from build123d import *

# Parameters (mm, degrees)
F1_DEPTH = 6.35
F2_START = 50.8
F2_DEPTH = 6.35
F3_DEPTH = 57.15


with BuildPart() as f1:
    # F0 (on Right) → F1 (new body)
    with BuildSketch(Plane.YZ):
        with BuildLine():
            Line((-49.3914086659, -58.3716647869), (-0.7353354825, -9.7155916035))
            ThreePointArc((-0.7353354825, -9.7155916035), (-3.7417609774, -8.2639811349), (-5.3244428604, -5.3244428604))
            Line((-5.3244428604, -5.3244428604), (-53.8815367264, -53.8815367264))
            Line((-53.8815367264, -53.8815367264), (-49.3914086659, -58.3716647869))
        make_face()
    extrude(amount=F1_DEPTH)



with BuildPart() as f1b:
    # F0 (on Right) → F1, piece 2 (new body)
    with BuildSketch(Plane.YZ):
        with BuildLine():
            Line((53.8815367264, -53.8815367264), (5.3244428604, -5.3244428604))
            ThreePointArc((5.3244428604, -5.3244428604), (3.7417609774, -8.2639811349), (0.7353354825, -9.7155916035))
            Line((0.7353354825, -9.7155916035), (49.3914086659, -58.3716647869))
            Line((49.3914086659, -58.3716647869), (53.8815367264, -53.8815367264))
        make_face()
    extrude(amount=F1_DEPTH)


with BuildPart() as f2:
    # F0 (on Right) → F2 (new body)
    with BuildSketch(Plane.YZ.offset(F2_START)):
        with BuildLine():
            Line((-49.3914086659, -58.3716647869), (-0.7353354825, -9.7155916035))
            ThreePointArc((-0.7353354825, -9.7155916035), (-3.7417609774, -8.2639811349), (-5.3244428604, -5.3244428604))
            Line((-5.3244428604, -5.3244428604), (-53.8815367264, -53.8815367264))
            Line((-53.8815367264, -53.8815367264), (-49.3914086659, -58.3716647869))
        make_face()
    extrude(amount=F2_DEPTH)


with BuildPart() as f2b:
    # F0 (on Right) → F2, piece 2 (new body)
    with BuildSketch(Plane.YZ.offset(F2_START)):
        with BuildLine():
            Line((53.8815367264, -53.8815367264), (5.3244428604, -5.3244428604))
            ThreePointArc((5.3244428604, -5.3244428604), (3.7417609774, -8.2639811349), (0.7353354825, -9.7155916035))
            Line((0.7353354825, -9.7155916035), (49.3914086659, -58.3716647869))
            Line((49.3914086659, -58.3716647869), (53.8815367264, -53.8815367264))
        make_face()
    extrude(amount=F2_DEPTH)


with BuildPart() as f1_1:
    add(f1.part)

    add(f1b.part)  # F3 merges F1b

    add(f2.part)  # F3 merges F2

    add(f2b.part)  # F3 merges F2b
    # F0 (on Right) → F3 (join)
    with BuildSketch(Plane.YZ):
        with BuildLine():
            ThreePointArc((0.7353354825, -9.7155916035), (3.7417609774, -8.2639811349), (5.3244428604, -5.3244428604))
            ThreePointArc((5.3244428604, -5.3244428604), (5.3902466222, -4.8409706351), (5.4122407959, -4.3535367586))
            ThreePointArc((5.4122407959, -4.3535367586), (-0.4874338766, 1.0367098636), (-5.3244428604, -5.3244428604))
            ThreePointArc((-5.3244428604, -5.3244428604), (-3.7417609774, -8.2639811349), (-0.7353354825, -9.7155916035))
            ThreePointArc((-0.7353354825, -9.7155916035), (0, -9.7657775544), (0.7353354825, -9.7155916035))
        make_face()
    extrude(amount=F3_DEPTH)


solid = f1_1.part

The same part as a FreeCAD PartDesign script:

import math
import FreeCAD as App
import Part
import Sketcher

V = App.Vector
Q = App.Units.Quantity

doc = App.newDocument("Part")
params = doc.addObject("Spreadsheet::Sheet", "Params")
for row, (alias, value) in enumerate([
    ("sketch1_length", "0.25 in"),
    ("pad1_length", "0.25 in"),
    ("sketch2_length", "0.25 in"),
    ("pad2_length", "0.25 in"),
    ("sketch3_length", "0.25 in"),
    ("pad3_length", "0.25 in"),
    ("sketch4_length", "0.25 in"),
    ("pad4_length", "0.25 in"),
    ("pad5_length", "2.25 in"),
], start=1):
    params.set(f"A{row}", alias)
    params.set(f"B{row}", "=" + value)
    params.setAlias(f"B{row}", alias)

body = doc.addObject("PartDesign::Body", "Body")

sketch1 = doc.addObject("Sketcher::SketchObject", "Sketch")
body.addObject(sketch1)
sketch1.AttachmentSupport = (doc.YZ_Plane, [""])
sketch1.MapMode = "FlatFace"
sketch1.addGeometry([
    Part.LineSegment(V(-49.391409, -58.371665, 0), V(-0.735335, -9.715592, 0)),
    Part.ArcOfCircle(Part.Circle(V(0, -4.353537, 0), V(0, 0, 1), 5.412241), math.radians(-169.665723), math.radians(-97.808656)),
    Part.LineSegment(V(-5.324443, -5.324443, 0), V(-53.881537, -53.881537, 0)),
    Part.LineSegment(V(-53.881537, -53.881537, 0), V(-49.391409, -58.371665, 0)),
], False)
sketch1.addConstraint([
    Sketcher.Constraint("Coincident", 0, 2, 1, 2),
    Sketcher.Constraint("Coincident", 1, 1, 2, 1),
    Sketcher.Constraint("Coincident", 2, 2, 3, 1),
    Sketcher.Constraint("Coincident", 3, 2, 0, 1),
    Sketcher.Constraint("PointOnObject", 1, 3, -2),
    Sketcher.Constraint("Parallel", 0, 2),
    Sketcher.Constraint("Perpendicular", 2, 3),
    Sketcher.Constraint("Angle", 0, Q("45 deg")),
    Sketcher.Constraint("Distance", 3, Q("0.25 in")),
    Sketcher.Constraint("Radius", 1, Q("5.412241 mm")),
    Sketcher.Constraint("Distance", 2, Q("68.670101 mm")),
    Sketcher.Constraint("DistanceX", 2, 2, 0, 2, Q("53.146201 mm")),
    Sketcher.Constraint("DistanceY", 0, 2, -1, 1, Q("9.715592 mm")),
])
sketch1.setExpression("Constraints[8]", "Params.sketch1_length")
pad1 = doc.addObject("PartDesign::Pad", "Pad")
body.addObject(pad1)
pad1.Profile = sketch1
pad1.setExpression("Length", "Params.pad1_length")
body2 = doc.addObject("PartDesign::Body", "Body001")

sketch2 = doc.addObject("Sketcher::SketchObject", "Sketch001")
body2.addObject(sketch2)
sketch2.AttachmentSupport = (doc.getObject("YZ_Plane001"), [""])
sketch2.MapMode = "FlatFace"
sketch2.addGeometry([
    Part.LineSegment(V(53.881537, -53.881537, 0), V(5.324443, -5.324443, 0)),
    Part.ArcOfCircle(Part.Circle(V(0, -4.353537, 0), V(0, 0, 1), 5.412241), math.radians(-82.191344), math.radians(-10.334277)),
    Part.LineSegment(V(0.735335, -9.715592, 0), V(49.391409, -58.371665, 0)),
    Part.LineSegment(V(49.391409, -58.371665, 0), V(53.881537, -53.881537, 0)),
], False)
sketch2.addConstraint([
    Sketcher.Constraint("Coincident", 0, 2, 1, 2),
    Sketcher.Constraint("Coincident", 1, 1, 2, 1),
    Sketcher.Constraint("Coincident", 2, 2, 3, 1),
    Sketcher.Constraint("Coincident", 3, 2, 0, 1),
    Sketcher.Constraint("PointOnObject", 1, 3, -2),
    Sketcher.Constraint("Parallel", 0, 2),
    Sketcher.Constraint("Perpendicular", 2, 3),
    Sketcher.Constraint("Angle", 0, Q("135 deg")),
    Sketcher.Constraint("Distance", 3, Q("0.25 in")),
    Sketcher.Constraint("Radius", 1, Q("5.412241 mm")),
    Sketcher.Constraint("Distance", 0, Q("68.670101 mm")),
    Sketcher.Constraint("DistanceX", 1, 1, 3, 2, Q("53.146201 mm")),
    Sketcher.Constraint("DistanceY", 1, 1, -1, 1, Q("9.715592 mm")),
])
sketch2.setExpression("Constraints[8]", "Params.sketch2_length")
pad2 = doc.addObject("PartDesign::Pad", "Pad001")
body2.addObject(pad2)
pad2.Profile = sketch2
pad2.setExpression("Length", "Params.pad2_length")
body3 = doc.addObject("PartDesign::Body", "Body002")

sketch3 = doc.addObject("Sketcher::SketchObject", "Sketch002")
body3.addObject(sketch3)
sketch3.AttachmentSupport = (doc.getObject("YZ_Plane002"), [""])
sketch3.MapMode = "FlatFace"
sketch3.AttachmentOffset = App.Placement(V(0, 0, 2 * 25.4), App.Rotation())
sketch3.addGeometry([
    Part.LineSegment(V(-49.391409, -58.371665, 0), V(-0.735335, -9.715592, 0)),
    Part.ArcOfCircle(Part.Circle(V(0, -4.353537, 0), V(0, 0, 1), 5.412241), math.radians(-169.665723), math.radians(-97.808656)),
    Part.LineSegment(V(-5.324443, -5.324443, 0), V(-53.881537, -53.881537, 0)),
    Part.LineSegment(V(-53.881537, -53.881537, 0), V(-49.391409, -58.371665, 0)),
], False)
sketch3.addConstraint([
    Sketcher.Constraint("Coincident", 0, 2, 1, 2),
    Sketcher.Constraint("Coincident", 1, 1, 2, 1),
    Sketcher.Constraint("Coincident", 2, 2, 3, 1),
    Sketcher.Constraint("Coincident", 3, 2, 0, 1),
    Sketcher.Constraint("PointOnObject", 1, 3, -2),
    Sketcher.Constraint("Parallel", 0, 2),
    Sketcher.Constraint("Perpendicular", 2, 3),
    Sketcher.Constraint("Angle", 0, Q("45 deg")),
    Sketcher.Constraint("Distance", 3, Q("0.25 in")),
    Sketcher.Constraint("Radius", 1, Q("5.412241 mm")),
    Sketcher.Constraint("Distance", 2, Q("68.670101 mm")),
    Sketcher.Constraint("DistanceX", 2, 2, 0, 2, Q("53.146201 mm")),
    Sketcher.Constraint("DistanceY", 0, 2, -1, 1, Q("9.715592 mm")),
])
sketch3.setExpression("Constraints[8]", "Params.sketch3_length")
pad3 = doc.addObject("PartDesign::Pad", "Pad002")
body3.addObject(pad3)
pad3.Profile = sketch3
pad3.setExpression("Length", "Params.pad3_length")
body4 = doc.addObject("PartDesign::Body", "Body003")

sketch4 = doc.addObject("Sketcher::SketchObject", "Sketch003")
body4.addObject(sketch4)
sketch4.AttachmentSupport = (doc.getObject("YZ_Plane003"), [""])
sketch4.MapMode = "FlatFace"
sketch4.AttachmentOffset = App.Placement(V(0, 0, 2 * 25.4), App.Rotation())
sketch4.addGeometry([
    Part.LineSegment(V(53.881537, -53.881537, 0), V(5.324443, -5.324443, 0)),
    Part.ArcOfCircle(Part.Circle(V(0, -4.353537, 0), V(0, 0, 1), 5.412241), math.radians(-82.191344), math.radians(-10.334277)),
    Part.LineSegment(V(0.735335, -9.715592, 0), V(49.391409, -58.371665, 0)),
    Part.LineSegment(V(49.391409, -58.371665, 0), V(53.881537, -53.881537, 0)),
], False)
sketch4.addConstraint([
    Sketcher.Constraint("Coincident", 0, 2, 1, 2),
    Sketcher.Constraint("Coincident", 1, 1, 2, 1),
    Sketcher.Constraint("Coincident", 2, 2, 3, 1),
    Sketcher.Constraint("Coincident", 3, 2, 0, 1),
    Sketcher.Constraint("PointOnObject", 1, 3, -2),
    Sketcher.Constraint("Parallel", 0, 2),
    Sketcher.Constraint("Perpendicular", 2, 3),
    Sketcher.Constraint("Angle", 0, Q("135 deg")),
    Sketcher.Constraint("Distance", 3, Q("0.25 in")),
    Sketcher.Constraint("Radius", 1, Q("5.412241 mm")),
    Sketcher.Constraint("Distance", 0, Q("68.670101 mm")),
    Sketcher.Constraint("DistanceX", 1, 1, 3, 2, Q("53.146201 mm")),
    Sketcher.Constraint("DistanceY", 1, 1, -1, 1, Q("9.715592 mm")),
])
sketch4.setExpression("Constraints[8]", "Params.sketch4_length")
pad4 = doc.addObject("PartDesign::Pad", "Pad003")
body4.addObject(pad4)
pad4.Profile = sketch4
pad4.setExpression("Length", "Params.pad4_length")
body.AllowCompound = True
doc.recompute()

boolean = doc.addObject("PartDesign::Boolean", "Boolean")
body.addObject(boolean)
boolean.Type = "Fuse"
boolean.addObjects([body2])
doc.recompute()

boolean2 = doc.addObject("PartDesign::Boolean", "Boolean001")
body.addObject(boolean2)
boolean2.Type = "Fuse"
boolean2.addObjects([body3])
doc.recompute()

boolean3 = doc.addObject("PartDesign::Boolean", "Boolean002")
body.addObject(boolean3)
boolean3.Type = "Fuse"
boolean3.addObjects([body4])

sketch5 = doc.addObject("Sketcher::SketchObject", "Sketch004")
body.addObject(sketch5)
sketch5.AttachmentSupport = (doc.YZ_Plane, [""])
sketch5.MapMode = "FlatFace"
sketch5.addGeometry([
    Part.ArcOfCircle(Part.Circle(V(0, -4.353537, 0), V(0, 0, 1), 5.412241), math.radians(-82.191344), math.radians(-10.334277)),
    Part.ArcOfCircle(Part.Circle(V(0, -4.353537, 0), V(0, 0, 1), 5.412241), math.radians(-10.334277), math.radians(0)),
    Part.ArcOfCircle(Part.Circle(V(0, -4.353537, 0), V(0, 0, 1), 5.412241), math.radians(0), math.radians(190.334277)),
    Part.ArcOfCircle(Part.Circle(V(0, -4.353537, 0), V(0, 0, 1), 5.412241), math.radians(-169.665723), math.radians(-97.808656)),
    Part.ArcOfCircle(Part.Circle(V(0, -4.353537, 0), V(0, 0, 1), 5.412241), math.radians(-97.808656), math.radians(-82.191344)),
], False)
sketch5.addConstraint([
    Sketcher.Constraint("Tangent", 0, 2, 1, 1),
    Sketcher.Constraint("Tangent", 1, 2, 2, 1),
    Sketcher.Constraint("Tangent", 2, 2, 3, 1),
    Sketcher.Constraint("Tangent", 3, 2, 4, 1),
    Sketcher.Constraint("Tangent", 4, 2, 0, 1),
    Sketcher.Constraint("Coincident", 2, 3, 0, 3),
    Sketcher.Constraint("Symmetric", 0, 2, 2, 2, -2),
    Sketcher.Constraint("Horizontal", 4, 3, 1, 2),
    Sketcher.Constraint("Horizontal", 3, 2, 4, 2),
    Sketcher.Constraint("Radius", 0, Q("5.412241 mm")),
    Sketcher.Constraint("DistanceY", 3, 2, -1, 1, Q("9.715592 mm")),
    Sketcher.Constraint("DistanceX", 3, 2, 4, 2, Q("1.470671 mm")),
    Sketcher.Constraint("DistanceX", -1, 1, 0, 2, Q("5.324443 mm")),
])
pad5 = doc.addObject("PartDesign::Pad", "Pad004")
body.addObject(pad5)
pad5.Profile = sketch5
pad5.setExpression("Length", "Params.pad5_length")

doc.recompute()
